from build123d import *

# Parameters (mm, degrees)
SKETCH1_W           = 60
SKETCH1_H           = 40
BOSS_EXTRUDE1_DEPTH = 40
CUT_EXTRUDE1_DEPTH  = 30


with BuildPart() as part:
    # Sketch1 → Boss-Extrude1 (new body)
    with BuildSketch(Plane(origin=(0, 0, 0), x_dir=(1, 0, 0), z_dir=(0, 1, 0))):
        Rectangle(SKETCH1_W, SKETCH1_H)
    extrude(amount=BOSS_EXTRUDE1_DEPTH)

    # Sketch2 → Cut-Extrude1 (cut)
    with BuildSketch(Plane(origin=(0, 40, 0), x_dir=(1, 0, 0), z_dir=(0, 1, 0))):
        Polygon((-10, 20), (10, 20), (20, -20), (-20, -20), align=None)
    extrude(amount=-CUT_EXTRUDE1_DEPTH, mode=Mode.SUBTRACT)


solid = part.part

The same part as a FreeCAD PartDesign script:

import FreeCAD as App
import Part
import Sketcher

V = App.Vector

doc = App.newDocument("Part")
body = doc.addObject("PartDesign::Body", "Body")

sketch1 = body.newObject("Sketcher::SketchObject", "Sketch")
sketch1.AttachmentSupport = (doc.getObject("XZ_Plane"), [""])
sketch1.MapMode = "FlatFace"
sketch1.addGeometry(Part.LineSegment(V(-30, -20, 0), V(-30, 20, 0)), False)
sketch1.addGeometry(Part.LineSegment(V(-30, 20, 0), V(30, 20, 0)), False)
sketch1.addGeometry(Part.LineSegment(V(30, 20, 0), V(30, -20, 0)), False)
sketch1.addGeometry(Part.LineSegment(V(30, -20, 0), V(-30, -20, 0)), False)
sketch1.addConstraint(Sketcher.Constraint("Coincident", 0, 2, 1, 1))
sketch1.addConstraint(Sketcher.Constraint("Coincident", 1, 2, 2, 1))
sketch1.addConstraint(Sketcher.Constraint("Coincident", 2, 2, 3, 1))
sketch1.addConstraint(Sketcher.Constraint("Coincident", 3, 2, 0, 1))
sketch1.addConstraint(Sketcher.Constraint("Vertical", 0))
sketch1.addConstraint(Sketcher.Constraint("Horizontal", 1))
sketch1.addConstraint(Sketcher.Constraint("Vertical", 2))
sketch1.addConstraint(Sketcher.Constraint("Horizontal", 3))
sketch1.addConstraint(Sketcher.Constraint("Symmetric", 0, 2, 2, 2, -1, 1))
sketch1.addConstraint(Sketcher.Constraint("DistanceX", 1, 1, 1, 2, 60.0))
sketch1.addConstraint(Sketcher.Constraint("DistanceY", 0, 1, 0, 2, 40.0))
pad1 = body.newObject("PartDesign::Pad", "Pad")
pad1.Profile = sketch1
pad1.Length = 40
pad1.Reversed = True

sketch2 = body.newObject("Sketcher::SketchObject", "Sketch001")
sketch2.AttachmentSupport = (doc.getObject("XZ_Plane"), [""])
sketch2.MapMode = "FlatFace"
sketch2.AttachmentOffset = App.Placement(V(0, 0, -40), App.Rotation())
sketch2.addGeometry(Part.LineSegment(V(10, -20, 0), V(-10, -20, 0)), False)
sketch2.addGeometry(Part.LineSegment(V(-10, -20, 0), V(-20, 20, 0)), False)
sketch2.addGeometry(Part.LineSegment(V(-20, 20, 0), V(20, 20, 0)), False)
sketch2.addGeometry(Part.LineSegment(V(20, 20, 0), V(10, -20, 0)), False)
sketch2.addConstraint(Sketcher.Constraint("Coincident", 0, 2, 1, 1))
sketch2.addConstraint(Sketcher.Constraint("Coincident", 1, 2, 2, 1))
sketch2.addConstraint(Sketcher.Constraint("Coincident", 2, 2, 3, 1))
sketch2.addConstraint(Sketcher.Constraint("Coincident", 3, 2, 0, 1))
sketch2.addConstraint(Sketcher.Constraint("Horizontal", 0))
sketch2.addConstraint(Sketcher.Constraint("Horizontal", 2))
sketch2.addConstraint(Sketcher.Constraint("Equal", 1, 3))
sketch2.addConstraint(Sketcher.Constraint("DistanceX", 0, 2, 0, 1, 20.0))
sketch2.addConstraint(Sketcher.Constraint("DistanceX", 2, 1, 2, 2, 40.0))
sketch2.addConstraint(Sketcher.Constraint("DistanceX", 0, 2, -1, 1, 10.0))
sketch2.addConstraint(Sketcher.Constraint("DistanceY", 0, 2, -1, 1, 20.0))
sketch2.addConstraint(Sketcher.Constraint("DistanceY", -1, 1, 1, 2, 20.0))
pocket1 = body.newObject("PartDesign::Pocket", "Pocket")
pocket1.Profile = sketch2
pocket1.Length = 30
pocket1.Reversed = True

doc.recompute()
